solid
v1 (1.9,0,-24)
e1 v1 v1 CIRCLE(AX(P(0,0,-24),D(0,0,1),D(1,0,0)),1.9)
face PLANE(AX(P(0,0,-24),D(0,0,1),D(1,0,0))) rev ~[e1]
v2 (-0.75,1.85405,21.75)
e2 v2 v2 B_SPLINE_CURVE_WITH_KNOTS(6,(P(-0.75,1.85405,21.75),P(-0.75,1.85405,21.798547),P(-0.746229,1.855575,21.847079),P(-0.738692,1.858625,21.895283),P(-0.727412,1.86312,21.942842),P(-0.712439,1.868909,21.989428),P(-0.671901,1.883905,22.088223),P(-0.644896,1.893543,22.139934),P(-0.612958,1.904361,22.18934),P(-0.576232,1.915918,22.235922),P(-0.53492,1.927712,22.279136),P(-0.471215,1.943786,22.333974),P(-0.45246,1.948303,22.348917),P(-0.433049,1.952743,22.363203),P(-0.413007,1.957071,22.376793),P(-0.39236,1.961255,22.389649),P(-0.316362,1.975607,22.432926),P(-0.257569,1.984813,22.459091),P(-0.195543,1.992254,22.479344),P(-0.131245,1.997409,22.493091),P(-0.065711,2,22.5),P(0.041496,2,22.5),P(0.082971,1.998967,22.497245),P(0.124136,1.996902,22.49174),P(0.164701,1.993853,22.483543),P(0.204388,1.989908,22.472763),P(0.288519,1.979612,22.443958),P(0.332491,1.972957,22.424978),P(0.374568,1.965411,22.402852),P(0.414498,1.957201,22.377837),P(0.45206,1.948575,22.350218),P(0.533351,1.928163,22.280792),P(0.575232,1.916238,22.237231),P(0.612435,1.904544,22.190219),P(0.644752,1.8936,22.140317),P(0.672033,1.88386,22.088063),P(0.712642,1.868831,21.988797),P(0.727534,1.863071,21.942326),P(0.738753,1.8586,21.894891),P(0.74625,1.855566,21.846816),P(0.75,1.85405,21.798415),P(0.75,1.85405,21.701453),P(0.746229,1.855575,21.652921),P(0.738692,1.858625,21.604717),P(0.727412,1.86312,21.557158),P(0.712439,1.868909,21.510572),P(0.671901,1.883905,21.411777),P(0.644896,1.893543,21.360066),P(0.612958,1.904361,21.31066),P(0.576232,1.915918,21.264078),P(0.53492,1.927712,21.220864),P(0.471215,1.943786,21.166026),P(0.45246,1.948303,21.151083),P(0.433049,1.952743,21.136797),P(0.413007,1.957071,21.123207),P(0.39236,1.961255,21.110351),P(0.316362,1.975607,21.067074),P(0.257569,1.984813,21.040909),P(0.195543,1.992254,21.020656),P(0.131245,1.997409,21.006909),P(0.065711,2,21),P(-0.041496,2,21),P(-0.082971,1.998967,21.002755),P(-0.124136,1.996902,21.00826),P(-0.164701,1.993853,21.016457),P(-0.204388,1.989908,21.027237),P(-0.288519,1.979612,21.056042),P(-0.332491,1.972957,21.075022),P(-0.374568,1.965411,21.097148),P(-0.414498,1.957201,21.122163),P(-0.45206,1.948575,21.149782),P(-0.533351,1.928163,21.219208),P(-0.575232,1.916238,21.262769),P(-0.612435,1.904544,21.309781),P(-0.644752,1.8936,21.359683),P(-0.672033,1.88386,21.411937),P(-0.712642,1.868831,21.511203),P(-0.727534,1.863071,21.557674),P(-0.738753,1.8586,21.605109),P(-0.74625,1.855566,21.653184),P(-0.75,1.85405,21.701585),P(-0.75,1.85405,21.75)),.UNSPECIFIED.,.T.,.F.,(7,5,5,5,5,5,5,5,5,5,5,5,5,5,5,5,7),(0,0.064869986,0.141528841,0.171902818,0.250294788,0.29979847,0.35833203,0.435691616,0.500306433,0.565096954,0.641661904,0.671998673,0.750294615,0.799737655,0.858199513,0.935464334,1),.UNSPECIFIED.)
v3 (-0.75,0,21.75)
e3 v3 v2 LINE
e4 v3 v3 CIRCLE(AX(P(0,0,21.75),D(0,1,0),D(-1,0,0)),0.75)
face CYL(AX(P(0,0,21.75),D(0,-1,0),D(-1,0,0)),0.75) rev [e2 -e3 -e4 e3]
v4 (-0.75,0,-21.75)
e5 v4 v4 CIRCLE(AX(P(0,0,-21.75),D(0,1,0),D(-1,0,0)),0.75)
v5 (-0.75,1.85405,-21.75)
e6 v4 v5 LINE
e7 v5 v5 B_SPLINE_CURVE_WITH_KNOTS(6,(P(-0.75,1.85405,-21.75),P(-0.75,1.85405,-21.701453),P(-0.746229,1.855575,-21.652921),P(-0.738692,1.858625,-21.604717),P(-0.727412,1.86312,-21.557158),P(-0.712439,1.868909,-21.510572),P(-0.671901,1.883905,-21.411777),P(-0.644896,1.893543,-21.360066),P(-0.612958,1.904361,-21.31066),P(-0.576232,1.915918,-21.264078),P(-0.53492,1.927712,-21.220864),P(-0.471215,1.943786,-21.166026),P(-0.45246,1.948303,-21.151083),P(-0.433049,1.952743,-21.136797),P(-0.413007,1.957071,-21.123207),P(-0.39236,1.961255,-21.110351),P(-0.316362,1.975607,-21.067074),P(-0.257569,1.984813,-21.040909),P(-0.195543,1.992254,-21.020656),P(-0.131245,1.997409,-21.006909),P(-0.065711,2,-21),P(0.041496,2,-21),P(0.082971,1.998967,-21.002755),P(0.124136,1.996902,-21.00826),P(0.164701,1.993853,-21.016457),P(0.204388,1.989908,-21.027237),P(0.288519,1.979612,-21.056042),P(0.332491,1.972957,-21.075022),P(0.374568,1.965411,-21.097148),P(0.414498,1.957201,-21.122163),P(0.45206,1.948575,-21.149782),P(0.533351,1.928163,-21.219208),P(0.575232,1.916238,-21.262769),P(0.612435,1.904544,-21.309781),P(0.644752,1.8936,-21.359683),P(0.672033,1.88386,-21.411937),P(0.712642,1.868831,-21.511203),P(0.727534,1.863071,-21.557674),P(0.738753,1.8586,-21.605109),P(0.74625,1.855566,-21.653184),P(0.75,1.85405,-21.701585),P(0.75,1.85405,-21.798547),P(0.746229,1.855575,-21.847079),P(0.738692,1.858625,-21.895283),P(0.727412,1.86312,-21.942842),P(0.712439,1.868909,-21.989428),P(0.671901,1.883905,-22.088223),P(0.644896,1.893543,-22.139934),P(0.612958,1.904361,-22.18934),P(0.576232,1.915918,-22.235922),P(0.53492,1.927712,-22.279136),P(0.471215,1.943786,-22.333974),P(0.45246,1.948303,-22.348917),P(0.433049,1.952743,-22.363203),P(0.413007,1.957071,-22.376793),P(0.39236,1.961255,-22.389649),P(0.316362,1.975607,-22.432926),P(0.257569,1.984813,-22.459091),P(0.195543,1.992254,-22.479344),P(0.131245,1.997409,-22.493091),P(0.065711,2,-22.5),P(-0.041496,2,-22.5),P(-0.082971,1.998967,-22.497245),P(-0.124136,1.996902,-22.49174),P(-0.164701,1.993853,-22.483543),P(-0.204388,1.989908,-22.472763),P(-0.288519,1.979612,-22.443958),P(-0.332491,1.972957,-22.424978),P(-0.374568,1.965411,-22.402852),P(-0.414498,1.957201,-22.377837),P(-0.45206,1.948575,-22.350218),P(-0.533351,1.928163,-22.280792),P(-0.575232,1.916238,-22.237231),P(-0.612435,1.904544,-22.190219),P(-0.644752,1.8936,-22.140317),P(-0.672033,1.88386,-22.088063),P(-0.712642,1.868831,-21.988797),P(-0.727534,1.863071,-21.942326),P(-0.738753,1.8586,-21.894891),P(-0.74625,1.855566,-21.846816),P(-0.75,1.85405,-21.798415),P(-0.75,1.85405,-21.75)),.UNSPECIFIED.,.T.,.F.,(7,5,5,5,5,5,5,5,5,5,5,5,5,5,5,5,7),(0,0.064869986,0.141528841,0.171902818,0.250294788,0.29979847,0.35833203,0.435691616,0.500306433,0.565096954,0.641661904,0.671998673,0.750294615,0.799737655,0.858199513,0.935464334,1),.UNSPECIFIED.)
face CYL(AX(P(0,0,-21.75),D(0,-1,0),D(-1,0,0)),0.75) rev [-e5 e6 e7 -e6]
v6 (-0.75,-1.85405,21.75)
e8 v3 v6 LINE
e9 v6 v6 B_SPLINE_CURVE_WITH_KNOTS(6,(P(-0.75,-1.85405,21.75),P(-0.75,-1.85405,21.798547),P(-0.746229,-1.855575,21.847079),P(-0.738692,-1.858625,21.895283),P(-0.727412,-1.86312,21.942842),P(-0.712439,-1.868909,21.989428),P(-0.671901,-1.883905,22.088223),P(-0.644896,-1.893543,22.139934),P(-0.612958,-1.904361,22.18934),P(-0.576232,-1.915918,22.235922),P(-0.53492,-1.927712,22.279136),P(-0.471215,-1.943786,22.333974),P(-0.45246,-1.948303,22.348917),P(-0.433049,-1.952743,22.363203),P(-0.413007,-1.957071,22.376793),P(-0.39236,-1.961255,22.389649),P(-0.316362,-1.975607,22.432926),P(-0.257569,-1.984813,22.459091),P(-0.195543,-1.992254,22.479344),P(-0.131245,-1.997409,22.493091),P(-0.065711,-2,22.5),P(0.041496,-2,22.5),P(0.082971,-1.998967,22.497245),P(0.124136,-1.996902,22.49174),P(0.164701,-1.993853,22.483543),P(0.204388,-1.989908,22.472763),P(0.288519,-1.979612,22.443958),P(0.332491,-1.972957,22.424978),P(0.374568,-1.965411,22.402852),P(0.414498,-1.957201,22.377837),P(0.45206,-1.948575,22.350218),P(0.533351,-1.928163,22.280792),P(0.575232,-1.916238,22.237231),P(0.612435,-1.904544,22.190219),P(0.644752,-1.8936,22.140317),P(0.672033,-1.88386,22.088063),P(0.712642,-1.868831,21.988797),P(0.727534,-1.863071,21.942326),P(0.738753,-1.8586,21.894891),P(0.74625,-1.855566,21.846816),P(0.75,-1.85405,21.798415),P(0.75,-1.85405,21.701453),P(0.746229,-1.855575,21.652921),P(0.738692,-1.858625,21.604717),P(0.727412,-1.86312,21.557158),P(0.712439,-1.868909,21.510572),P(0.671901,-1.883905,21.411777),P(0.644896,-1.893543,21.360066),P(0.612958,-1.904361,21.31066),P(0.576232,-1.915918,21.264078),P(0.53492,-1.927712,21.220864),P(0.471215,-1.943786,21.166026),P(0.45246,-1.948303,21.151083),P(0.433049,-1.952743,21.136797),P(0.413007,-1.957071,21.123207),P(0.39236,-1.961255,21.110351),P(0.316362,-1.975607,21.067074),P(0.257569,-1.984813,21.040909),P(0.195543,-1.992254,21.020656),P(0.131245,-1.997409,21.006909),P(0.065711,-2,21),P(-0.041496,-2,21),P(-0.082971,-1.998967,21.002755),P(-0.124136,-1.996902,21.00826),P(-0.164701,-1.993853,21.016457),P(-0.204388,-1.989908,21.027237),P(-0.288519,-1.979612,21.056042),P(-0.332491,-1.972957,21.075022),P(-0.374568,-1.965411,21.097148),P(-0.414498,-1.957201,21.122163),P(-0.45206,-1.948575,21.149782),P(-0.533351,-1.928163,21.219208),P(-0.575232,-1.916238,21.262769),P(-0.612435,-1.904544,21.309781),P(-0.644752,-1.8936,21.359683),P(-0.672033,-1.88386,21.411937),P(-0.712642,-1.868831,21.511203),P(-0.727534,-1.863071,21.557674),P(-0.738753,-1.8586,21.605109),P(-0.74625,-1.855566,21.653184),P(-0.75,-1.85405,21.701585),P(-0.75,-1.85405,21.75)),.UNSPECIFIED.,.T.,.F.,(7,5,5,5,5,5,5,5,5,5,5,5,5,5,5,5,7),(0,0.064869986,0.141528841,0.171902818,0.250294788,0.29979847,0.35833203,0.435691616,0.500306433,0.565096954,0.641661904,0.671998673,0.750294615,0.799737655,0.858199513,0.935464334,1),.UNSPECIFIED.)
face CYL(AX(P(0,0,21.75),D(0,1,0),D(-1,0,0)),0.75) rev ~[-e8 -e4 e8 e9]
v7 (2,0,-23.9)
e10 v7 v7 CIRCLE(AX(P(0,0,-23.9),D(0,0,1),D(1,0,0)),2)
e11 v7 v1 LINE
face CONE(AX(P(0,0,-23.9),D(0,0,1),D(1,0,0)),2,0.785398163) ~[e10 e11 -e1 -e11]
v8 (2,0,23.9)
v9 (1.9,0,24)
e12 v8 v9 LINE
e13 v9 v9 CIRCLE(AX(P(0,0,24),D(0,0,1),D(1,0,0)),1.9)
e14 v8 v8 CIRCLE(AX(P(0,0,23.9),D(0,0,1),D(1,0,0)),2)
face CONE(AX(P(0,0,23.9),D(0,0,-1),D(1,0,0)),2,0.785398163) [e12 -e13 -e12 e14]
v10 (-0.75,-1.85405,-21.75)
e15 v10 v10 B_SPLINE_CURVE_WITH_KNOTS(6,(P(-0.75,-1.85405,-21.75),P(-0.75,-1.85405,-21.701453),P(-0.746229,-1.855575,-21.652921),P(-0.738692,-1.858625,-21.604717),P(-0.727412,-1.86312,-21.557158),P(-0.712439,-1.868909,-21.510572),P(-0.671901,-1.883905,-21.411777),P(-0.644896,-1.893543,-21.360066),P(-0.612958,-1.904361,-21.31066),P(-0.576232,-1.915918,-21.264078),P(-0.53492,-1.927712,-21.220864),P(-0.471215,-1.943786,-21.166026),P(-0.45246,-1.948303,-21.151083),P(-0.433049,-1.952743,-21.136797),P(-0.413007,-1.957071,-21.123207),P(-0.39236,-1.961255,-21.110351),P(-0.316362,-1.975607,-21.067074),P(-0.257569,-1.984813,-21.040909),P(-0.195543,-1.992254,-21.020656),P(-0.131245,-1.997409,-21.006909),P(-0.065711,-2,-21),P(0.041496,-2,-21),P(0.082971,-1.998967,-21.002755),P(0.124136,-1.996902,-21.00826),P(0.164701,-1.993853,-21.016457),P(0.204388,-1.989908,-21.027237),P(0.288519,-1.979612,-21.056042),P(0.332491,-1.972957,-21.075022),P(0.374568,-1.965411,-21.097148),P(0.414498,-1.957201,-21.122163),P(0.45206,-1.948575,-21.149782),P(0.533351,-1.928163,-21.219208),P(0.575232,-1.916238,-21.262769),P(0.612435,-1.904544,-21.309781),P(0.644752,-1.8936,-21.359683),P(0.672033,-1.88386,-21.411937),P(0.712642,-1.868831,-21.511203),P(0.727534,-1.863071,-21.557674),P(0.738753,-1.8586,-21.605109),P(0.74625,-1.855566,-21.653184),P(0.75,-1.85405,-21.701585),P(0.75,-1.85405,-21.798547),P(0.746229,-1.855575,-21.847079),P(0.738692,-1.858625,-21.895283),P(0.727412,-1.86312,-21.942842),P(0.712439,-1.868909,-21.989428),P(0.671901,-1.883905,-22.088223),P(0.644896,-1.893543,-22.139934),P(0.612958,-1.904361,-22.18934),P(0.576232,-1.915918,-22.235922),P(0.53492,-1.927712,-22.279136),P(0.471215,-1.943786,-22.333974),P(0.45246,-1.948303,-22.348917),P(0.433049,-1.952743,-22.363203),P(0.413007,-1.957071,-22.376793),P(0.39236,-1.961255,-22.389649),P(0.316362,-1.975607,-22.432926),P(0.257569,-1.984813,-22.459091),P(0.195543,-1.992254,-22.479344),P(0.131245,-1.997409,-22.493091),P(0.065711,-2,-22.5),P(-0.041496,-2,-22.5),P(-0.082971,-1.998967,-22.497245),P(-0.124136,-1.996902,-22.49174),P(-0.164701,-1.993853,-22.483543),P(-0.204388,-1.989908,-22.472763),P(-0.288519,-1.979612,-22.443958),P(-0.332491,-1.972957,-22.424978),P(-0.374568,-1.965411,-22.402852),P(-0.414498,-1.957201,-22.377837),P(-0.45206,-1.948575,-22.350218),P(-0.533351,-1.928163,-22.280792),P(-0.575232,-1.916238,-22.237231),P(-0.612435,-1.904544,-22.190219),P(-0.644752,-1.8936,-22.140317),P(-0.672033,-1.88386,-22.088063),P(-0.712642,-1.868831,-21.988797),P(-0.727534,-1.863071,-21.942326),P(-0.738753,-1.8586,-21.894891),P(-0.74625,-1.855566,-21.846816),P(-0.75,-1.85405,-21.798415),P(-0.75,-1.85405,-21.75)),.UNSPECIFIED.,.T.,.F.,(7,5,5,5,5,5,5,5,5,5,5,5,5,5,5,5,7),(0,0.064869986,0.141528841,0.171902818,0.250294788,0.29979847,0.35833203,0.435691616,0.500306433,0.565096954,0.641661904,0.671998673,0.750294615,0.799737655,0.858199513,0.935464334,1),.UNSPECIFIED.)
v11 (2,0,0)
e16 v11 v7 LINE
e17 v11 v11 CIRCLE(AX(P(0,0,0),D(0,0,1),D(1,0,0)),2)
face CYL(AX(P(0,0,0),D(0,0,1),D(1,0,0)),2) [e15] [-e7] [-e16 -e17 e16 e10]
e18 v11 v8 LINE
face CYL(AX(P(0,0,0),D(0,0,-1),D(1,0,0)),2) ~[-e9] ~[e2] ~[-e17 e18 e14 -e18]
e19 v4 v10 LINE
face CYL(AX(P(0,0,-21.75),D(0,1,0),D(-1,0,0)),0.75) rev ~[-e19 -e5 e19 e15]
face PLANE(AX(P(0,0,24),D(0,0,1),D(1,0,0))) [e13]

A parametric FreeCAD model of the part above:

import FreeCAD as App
import Part
import Sketcher
Q = App.Units.Quantity


def edges_at(feature, points):
    """Names of the edges that pass closest to the given points."""
    edges = feature.Shape.Edges
    near = lambda p: min(range(len(edges)), key=lambda i: edges[i].distToShape(Part.Vertex(*p))[0])
    return sorted({f"Edge{near(p) + 1}" for p in points})

doc = App.newDocument("Part")
body = doc.addObject("PartDesign::Body", "Body")

# Sketch on XY plane
sketch1 = doc.addObject("Sketcher::SketchObject", "Sketch")
body.addObject(sketch1)
sketch1.AttachmentSupport = (doc.XY_Plane, [""])
sketch1.MapMode = "FlatFace"
sketch1.addGeometry(Part.Circle(App.Vector(0, 0, 0), App.Vector(0, 0, 1), 2), False)
sketch1.addConstraint([
    Sketcher.Constraint("Coincident", 0, 3, -1, 1),
    Sketcher.Constraint("Diameter", 0, Q("4 mm")),
])
pad1 = doc.addObject("PartDesign::Pad", "Pad")
body.addObject(pad1)
pad1.Profile = sketch1
pad1.Length = 48
pad1.Midplane = True
doc.recompute()

chamfer = doc.addObject("PartDesign::Chamfer", "Chamfer")
body.addObject(chamfer)
chamfer.Base = (pad1, edges_at(pad1, [(-2, 0, 24), (-2, 0, -24)]))
chamfer.Size = 0.1

# Sketch on XZ plane
sketch2 = doc.addObject("Sketcher::SketchObject", "Sketch001")
body.addObject(sketch2)
sketch2.AttachmentSupport = (doc.XZ_Plane, [""])
sketch2.MapMode = "FlatFace"
sketch2.addGeometry([
    Part.Circle(App.Vector(0, -21.8, 0), App.Vector(0, 0, 1), 0.8),
    Part.Circle(App.Vector(0, 21.8, 0), App.Vector(0, 0, 1), 0.8),
], False)
sketch2.addConstraint([
    Sketcher.Constraint("Equal", 0, 1),
    Sketcher.Constraint("Symmetric", 0, 3, 1, 3, -1, 1),
    Sketcher.Constraint("PointOnObject", 0, 3, -2),
    Sketcher.Constraint("Diameter", 0, Q("1.5 mm")),
    Sketcher.Constraint("DistanceY", 0, 3, 1, 3, Q("43.5 mm")),
])
pocket1 = doc.addObject("PartDesign::Pocket", "Pocket")
body.addObject(pocket1)
pocket1.Profile = sketch2
pocket1.Type = "ThroughAll"
pocket1.Midplane = True

doc.recompute()
